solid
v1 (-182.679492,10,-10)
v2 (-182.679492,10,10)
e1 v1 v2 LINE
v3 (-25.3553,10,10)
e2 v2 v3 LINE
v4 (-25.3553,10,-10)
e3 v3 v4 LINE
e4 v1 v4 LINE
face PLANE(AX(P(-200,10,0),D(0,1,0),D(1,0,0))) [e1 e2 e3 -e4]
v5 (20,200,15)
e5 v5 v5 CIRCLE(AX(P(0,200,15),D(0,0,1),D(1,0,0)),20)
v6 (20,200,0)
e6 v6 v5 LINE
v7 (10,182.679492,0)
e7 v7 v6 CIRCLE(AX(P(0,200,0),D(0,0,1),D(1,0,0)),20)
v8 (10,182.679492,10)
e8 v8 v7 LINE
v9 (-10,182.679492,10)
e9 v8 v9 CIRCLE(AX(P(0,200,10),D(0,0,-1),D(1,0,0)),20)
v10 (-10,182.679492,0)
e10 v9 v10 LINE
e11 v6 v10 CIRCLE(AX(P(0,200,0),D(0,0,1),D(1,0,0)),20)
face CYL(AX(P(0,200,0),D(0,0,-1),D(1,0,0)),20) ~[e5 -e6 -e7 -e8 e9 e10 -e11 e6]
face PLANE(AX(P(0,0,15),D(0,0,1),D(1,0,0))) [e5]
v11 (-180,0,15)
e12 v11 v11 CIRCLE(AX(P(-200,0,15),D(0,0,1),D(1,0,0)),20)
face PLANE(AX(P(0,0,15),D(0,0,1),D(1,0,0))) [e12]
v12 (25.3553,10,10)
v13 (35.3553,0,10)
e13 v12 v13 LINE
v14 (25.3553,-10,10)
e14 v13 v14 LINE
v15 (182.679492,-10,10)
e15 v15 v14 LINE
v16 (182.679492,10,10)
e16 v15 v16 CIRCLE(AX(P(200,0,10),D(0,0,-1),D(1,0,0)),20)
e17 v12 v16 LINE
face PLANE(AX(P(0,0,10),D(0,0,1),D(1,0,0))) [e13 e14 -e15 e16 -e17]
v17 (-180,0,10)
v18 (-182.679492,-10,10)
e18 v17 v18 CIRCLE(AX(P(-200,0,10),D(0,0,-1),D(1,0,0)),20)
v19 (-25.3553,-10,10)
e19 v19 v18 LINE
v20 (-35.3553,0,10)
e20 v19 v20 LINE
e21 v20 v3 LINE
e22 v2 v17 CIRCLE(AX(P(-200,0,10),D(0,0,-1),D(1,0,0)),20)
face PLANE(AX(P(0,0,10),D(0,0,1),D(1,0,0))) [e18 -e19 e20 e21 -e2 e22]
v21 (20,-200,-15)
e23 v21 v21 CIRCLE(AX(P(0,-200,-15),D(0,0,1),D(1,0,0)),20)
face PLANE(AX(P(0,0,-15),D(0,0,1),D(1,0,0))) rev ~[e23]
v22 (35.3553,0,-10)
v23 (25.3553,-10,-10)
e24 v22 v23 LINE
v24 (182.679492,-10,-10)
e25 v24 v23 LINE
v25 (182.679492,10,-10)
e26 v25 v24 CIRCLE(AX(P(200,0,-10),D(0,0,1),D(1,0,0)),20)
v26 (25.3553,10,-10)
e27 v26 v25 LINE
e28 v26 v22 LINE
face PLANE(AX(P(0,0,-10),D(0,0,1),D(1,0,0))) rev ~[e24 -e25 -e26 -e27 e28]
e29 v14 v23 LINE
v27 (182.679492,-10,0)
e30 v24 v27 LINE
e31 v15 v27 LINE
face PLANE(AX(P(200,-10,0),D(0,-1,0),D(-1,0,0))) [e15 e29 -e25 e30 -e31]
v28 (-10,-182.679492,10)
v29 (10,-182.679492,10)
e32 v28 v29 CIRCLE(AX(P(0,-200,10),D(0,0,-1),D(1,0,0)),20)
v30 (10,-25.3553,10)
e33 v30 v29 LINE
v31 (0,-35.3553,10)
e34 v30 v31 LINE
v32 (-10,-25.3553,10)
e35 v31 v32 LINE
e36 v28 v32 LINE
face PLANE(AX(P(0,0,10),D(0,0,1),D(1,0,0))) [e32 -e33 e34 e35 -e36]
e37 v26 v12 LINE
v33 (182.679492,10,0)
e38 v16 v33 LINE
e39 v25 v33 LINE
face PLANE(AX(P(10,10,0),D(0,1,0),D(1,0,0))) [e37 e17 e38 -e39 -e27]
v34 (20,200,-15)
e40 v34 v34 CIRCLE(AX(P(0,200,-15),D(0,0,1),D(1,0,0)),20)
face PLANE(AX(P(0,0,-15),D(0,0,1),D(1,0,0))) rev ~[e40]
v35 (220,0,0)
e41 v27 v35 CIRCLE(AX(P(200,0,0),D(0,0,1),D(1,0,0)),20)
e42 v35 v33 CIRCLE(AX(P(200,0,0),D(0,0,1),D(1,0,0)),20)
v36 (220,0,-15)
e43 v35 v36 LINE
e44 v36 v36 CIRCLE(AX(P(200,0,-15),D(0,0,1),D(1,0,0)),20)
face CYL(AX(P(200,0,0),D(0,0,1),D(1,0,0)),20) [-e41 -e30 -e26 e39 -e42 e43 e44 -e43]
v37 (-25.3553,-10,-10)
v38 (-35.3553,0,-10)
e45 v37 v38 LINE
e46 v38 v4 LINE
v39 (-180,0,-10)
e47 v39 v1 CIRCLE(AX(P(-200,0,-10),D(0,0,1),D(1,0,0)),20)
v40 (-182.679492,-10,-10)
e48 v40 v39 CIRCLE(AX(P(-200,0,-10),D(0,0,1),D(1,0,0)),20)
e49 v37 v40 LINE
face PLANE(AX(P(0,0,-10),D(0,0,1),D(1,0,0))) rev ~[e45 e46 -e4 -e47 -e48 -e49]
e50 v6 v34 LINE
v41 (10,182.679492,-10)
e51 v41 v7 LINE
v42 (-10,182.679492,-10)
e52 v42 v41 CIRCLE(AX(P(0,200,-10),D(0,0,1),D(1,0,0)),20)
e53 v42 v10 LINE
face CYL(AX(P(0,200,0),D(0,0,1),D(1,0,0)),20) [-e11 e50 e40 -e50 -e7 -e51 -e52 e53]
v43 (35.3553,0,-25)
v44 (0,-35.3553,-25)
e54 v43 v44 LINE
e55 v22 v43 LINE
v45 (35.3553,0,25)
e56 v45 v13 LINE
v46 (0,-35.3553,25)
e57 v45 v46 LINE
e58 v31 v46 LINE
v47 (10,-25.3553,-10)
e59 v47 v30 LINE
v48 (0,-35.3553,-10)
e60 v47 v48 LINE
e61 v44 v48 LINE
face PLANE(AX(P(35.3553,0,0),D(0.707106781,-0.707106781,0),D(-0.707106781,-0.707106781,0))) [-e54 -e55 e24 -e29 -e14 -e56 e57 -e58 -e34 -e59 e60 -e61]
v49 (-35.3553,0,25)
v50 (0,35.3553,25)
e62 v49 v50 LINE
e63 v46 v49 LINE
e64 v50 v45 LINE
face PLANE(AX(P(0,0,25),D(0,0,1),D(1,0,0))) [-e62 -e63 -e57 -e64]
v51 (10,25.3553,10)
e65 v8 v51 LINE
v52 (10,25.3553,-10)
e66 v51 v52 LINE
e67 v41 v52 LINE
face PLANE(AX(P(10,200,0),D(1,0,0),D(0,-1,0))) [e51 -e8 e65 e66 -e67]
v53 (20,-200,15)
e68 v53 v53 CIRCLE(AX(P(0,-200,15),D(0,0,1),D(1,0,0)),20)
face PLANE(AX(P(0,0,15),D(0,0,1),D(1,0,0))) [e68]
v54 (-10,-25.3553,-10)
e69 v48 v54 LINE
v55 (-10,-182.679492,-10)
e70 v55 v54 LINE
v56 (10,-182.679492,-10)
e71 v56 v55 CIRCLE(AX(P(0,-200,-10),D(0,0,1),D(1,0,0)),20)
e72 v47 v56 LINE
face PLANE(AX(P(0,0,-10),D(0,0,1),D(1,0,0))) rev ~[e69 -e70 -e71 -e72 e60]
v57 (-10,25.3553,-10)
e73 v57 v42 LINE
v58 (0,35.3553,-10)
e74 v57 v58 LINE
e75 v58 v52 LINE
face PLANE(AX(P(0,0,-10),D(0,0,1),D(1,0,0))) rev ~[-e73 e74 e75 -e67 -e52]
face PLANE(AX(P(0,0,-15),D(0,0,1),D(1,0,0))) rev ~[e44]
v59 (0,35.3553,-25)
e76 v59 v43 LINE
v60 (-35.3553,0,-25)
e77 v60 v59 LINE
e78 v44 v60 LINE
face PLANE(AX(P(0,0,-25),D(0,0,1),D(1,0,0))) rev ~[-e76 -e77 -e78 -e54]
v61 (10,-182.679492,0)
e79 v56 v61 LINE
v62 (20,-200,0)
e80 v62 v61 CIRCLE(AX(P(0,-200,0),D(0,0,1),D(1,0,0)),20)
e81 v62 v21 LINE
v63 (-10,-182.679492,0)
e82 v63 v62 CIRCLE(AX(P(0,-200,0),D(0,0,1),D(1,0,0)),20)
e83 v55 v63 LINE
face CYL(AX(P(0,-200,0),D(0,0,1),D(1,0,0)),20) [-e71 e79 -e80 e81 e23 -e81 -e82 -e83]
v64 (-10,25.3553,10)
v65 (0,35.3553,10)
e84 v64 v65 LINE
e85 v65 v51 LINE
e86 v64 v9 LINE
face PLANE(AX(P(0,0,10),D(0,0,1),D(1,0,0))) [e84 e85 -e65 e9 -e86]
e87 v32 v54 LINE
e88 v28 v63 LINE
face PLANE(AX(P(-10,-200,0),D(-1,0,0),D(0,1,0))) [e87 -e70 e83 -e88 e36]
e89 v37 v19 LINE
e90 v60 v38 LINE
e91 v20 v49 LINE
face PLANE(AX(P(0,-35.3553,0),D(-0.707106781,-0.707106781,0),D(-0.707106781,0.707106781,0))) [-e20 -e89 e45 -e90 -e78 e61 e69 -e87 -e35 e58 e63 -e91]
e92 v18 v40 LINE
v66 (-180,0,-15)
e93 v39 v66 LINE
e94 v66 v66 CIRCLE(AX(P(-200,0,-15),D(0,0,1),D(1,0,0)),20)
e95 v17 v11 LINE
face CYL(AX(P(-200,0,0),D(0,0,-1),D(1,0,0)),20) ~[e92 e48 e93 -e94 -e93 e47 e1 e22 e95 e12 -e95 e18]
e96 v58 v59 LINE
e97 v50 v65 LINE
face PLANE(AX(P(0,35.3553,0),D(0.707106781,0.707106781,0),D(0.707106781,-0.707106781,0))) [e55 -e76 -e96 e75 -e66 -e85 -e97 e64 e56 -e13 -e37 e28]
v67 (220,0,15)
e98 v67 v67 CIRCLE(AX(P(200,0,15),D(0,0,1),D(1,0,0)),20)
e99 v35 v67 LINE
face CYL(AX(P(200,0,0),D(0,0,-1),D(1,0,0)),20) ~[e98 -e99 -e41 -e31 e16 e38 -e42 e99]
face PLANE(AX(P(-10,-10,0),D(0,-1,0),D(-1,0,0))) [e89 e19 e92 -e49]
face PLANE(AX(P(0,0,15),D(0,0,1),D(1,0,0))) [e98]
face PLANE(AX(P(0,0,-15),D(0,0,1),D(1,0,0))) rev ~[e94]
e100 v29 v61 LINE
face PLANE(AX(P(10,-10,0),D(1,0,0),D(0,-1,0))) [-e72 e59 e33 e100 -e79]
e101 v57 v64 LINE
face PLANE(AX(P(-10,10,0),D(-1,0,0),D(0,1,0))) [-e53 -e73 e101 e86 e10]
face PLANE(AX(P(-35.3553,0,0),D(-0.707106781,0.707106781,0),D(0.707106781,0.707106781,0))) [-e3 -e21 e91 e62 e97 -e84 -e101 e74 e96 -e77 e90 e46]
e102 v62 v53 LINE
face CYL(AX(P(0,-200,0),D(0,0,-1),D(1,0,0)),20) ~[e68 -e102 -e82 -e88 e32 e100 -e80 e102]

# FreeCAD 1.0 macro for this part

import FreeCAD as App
import Part
import Sketcher
Q = App.Units.Quantity


def add_polygon(sketch, points):
    """Adds a closed chain of lines whose ends are joined by coincident constraints."""
    first, n = sketch.GeometryCount, len(points)
    for a, b in zip(points, points[1:] + points[:1]):
        sketch.addGeometry(Part.LineSegment(App.Vector(*a, 0), App.Vector(*b, 0)), False)
    for i in range(n):
        sketch.addConstraint(Sketcher.Constraint("Coincident", first + i, 2, first + (i + 1) % n, 1))

doc = App.newDocument("Part")
params = doc.addObject("Spreadsheet::Sheet", "Params")
for row, (alias, value) in enumerate([
    ("sketch1_length", "50 mm"),
    ("pad1_length", "50 mm"),
    ("sketch2_width", "20 mm"),
    ("pad2_length", "20 mm"),
    ("sketch3_diameter", "40 mm"),
    ("pad3_length", "30 mm"),
], start=1):
    params.set(f"A{row}", alias)
    params.set(f"B{row}", "=" + value)
    params.setAlias(f"B{row}", alias)

body = doc.addObject("PartDesign::Body", "Body")

# Sketch on XY plane
sketch1 = body.newObject("Sketcher::SketchObject", "Sketch")
sketch1.AttachmentSupport = (doc.getObject("XY_Plane"), [""])
sketch1.MapMode = "FlatFace"
add_polygon(sketch1, [(0, 35), (-35, 0), (0, -35), (35, 0)])  # lines 0-3
sketch1.addConstraint([
    Sketcher.Constraint("Symmetric", 0, 2, 2, 2, -1, 1),
    Sketcher.Constraint("Symmetric", 1, 2, 3, 2, -1, 1),
    Sketcher.Constraint("PointOnObject", 0, 2, -1),
    Sketcher.Constraint("PointOnObject", 1, 2, -2),
    Sketcher.Constraint("Perpendicular", 0, 1),
    Sketcher.Constraint("Distance", 0, Q("50 mm")),
])
sketch1.setExpression("Constraints[9]", "Params.sketch1_length")
pad1 = body.newObject("PartDesign::Pad", "Pad")
pad1.Profile = sketch1
pad1.setExpression("Length", "Params.pad1_length")
pad1.Midplane = True

# Sketch on XY plane
sketch2 = body.newObject("Sketcher::SketchObject", "Sketch001")
sketch2.AttachmentSupport = (doc.getObject("XY_Plane"), [""])
sketch2.MapMode = "FlatFace"
add_polygon(sketch2, [(-10, 10), (-200, 10), (-200, -10), (-10, -10), (-10, -200), (10, -200), (10, -10), (200, -10), (200, 10), (10, 10), (10, 200), (-10, 200)])  # lines 0-11
sketch2.addConstraint([
    Sketcher.Constraint("Horizontal", 0),
    Sketcher.Constraint("Vertical", 1),
    Sketcher.Constraint("Horizontal", 2),
    Sketcher.Constraint("Vertical", 3),
    Sketcher.Constraint("Horizontal", 4),
    Sketcher.Constraint("Vertical", 5),
    Sketcher.Constraint("Horizontal", 6),
    Sketcher.Constraint("Vertical", 7),
    Sketcher.Constraint("Horizontal", 8),
    Sketcher.Constraint("Vertical", 9),
    Sketcher.Constraint("Horizontal", 10),
    Sketcher.Constraint("Vertical", 11),
    Sketcher.Constraint("Symmetric", 0, 2, 6, 2, -1, 1),
    Sketcher.Constraint("Symmetric", 2, 2, 8, 2, -1, 1),
    Sketcher.Constraint("Symmetric", 4, 2, 10, 2, -1, 1),
    Sketcher.Constraint("Symmetric", 2, 2, 5, 2, -2),
    Sketcher.Constraint("Equal", 10, 1),
    Sketcher.Constraint("Equal", 8, 3),
    Sketcher.Constraint("DistanceX", 4, 1, 4, 2, Q("20 mm")),
    Sketcher.Constraint("DistanceX", 1, 2, 6, 2, Q("400 mm")),
])
sketch2.setExpression("Constraints[30]", "Params.sketch2_width")
pad2 = body.newObject("PartDesign::Pad", "Pad001")
pad2.Profile = sketch2
pad2.setExpression("Length", "Params.pad2_length")
pad2.Midplane = True

# Sketch on XY plane
sketch3 = body.newObject("Sketcher::SketchObject", "Sketch002")
sketch3.AttachmentSupport = (doc.getObject("XY_Plane"), [""])
sketch3.MapMode = "FlatFace"
sketch3.addGeometry([
    Part.Circle(App.Vector(-200, 0, 0), App.Vector(0, 0, 1), 20),
    Part.Circle(App.Vector(0, -200, 0), App.Vector(0, 0, 1), 20),
    Part.Circle(App.Vector(200, 0, 0), App.Vector(0, 0, 1), 20),
    Part.Circle(App.Vector(0, 200, 0), App.Vector(0, 0, 1), 20),
], False)
sketch3.addConstraint([
    Sketcher.Constraint("Equal", 0, 1),
    Sketcher.Constraint("Equal", 1, 2),
    Sketcher.Constraint("Equal", 2, 3),
    Sketcher.Constraint("Symmetric", 0, 3, 2, 3, -1, 1),
    Sketcher.Constraint("Symmetric", 1, 3, 3, 3, -1, 1),
    Sketcher.Constraint("PointOnObject", 0, 3, -1),
    Sketcher.Constraint("PointOnObject", 1, 3, -2),
    Sketcher.Constraint("Diameter", 0, Q("40 mm")),
    Sketcher.Constraint("DistanceX", 0, 3, -1, 1, Q("200 mm")),
    Sketcher.Constraint("DistanceY", 1, 3, -1, 1, Q("200 mm")),
])
sketch3.setExpression("Constraints[7]", "Params.sketch3_diameter")
pad3 = body.newObject("PartDesign::Pad", "Pad002")
pad3.Profile = sketch3
pad3.setExpression("Length", "Params.pad3_length")
pad3.Midplane = True

doc.recompute()
